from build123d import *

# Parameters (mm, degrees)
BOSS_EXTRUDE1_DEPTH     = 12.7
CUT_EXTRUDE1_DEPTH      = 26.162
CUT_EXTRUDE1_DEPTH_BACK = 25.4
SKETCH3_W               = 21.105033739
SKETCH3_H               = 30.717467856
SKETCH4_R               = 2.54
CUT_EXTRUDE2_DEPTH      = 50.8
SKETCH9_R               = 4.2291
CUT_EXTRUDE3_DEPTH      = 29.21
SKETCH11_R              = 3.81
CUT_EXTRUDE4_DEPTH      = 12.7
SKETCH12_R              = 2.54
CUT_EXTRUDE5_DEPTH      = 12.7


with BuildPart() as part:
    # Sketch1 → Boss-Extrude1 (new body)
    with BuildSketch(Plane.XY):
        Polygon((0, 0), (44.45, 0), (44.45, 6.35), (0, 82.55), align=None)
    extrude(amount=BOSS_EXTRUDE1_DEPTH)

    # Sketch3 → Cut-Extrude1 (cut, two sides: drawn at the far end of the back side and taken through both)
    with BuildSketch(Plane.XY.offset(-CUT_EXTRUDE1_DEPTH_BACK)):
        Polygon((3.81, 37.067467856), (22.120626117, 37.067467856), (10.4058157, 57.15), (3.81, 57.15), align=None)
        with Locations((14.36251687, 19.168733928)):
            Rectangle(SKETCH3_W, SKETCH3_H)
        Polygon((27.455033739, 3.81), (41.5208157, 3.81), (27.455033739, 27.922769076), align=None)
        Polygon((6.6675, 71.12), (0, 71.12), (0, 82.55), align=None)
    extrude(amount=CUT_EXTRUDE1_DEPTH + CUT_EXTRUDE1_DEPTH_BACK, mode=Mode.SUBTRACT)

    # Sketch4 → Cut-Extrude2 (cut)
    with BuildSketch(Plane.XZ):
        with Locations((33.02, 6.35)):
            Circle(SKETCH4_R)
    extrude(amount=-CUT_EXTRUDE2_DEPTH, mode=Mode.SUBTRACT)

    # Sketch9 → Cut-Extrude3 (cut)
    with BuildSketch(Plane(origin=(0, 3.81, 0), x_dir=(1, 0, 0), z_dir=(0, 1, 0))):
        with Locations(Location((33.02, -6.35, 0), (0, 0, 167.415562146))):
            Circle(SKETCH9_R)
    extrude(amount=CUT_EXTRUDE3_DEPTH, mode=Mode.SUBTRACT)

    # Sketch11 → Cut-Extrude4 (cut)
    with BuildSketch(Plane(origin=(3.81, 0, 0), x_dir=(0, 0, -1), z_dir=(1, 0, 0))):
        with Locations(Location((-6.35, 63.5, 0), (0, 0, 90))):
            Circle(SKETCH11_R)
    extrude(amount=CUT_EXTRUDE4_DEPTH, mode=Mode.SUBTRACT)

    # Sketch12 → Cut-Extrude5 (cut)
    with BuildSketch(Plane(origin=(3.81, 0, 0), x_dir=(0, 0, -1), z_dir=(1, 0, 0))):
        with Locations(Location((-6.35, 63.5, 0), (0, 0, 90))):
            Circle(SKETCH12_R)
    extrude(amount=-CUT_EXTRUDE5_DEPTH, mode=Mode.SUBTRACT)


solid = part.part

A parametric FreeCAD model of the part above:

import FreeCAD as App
import Part
import Sketcher

V = App.Vector
Q = App.Units.Quantity

doc = App.newDocument("Part")
body = doc.addObject("PartDesign::Body", "Body")

sketch1 = body.newObject("Sketcher::SketchObject", "Sketch")
sketch1.AttachmentSupport = (doc.getObject("XY_Plane"), [""])
sketch1.MapMode = "FlatFace"
sketch1.addGeometry(Part.LineSegment(V(0, 0, 0), V(44, 0, 0)), False)
sketch1.addGeometry(Part.LineSegment(V(44, 0, 0), V(44, 6, 0)), False)
sketch1.addGeometry(Part.LineSegment(V(44, 6, 0), V(0, 83, 0)), False)
sketch1.addGeometry(Part.LineSegment(V(0, 83, 0), V(0, 0, 0)), False)
sketch1.addConstraint(Sketcher.Constraint("Coincident", 0, 2, 1, 1))
sketch1.addConstraint(Sketcher.Constraint("Coincident", 1, 2, 2, 1))
sketch1.addConstraint(Sketcher.Constraint("Coincident", 2, 2, 3, 1))
sketch1.addConstraint(Sketcher.Constraint("Coincident", 3, 2, 0, 1))
sketch1.addConstraint(Sketcher.Constraint("Horizontal", 0))
sketch1.addConstraint(Sketcher.Constraint("Vertical", 1))
sketch1.addConstraint(Sketcher.Constraint("Vertical", 3))
sketch1.addConstraint(Sketcher.Constraint("Coincident", 3, 2, -1, 1))
sketch1.addConstraint(Sketcher.Constraint("DistanceY", 1, 2, 2, 2, Q("3 in")))
sketch1.addConstraint(Sketcher.Constraint("DistanceX", 0, 1, 0, 2, Q("1.75 in")))
sketch1.addConstraint(Sketcher.Constraint("DistanceY", 1, 1, 1, 2, Q("0.25 in")))
pad1 = body.newObject("PartDesign::Pad", "Pad")
pad1.Profile = sketch1
pad1.Length = Q("0.5 in")

sketch2 = body.newObject("Sketcher::SketchObject", "Sketch001")
sketch2.AttachmentSupport = (doc.getObject("XY_Plane"), [""])
sketch2.MapMode = "FlatFace"
sketch2.addGeometry(Part.LineSegment(V(4, 37, 0), V(22, 37, 0)), False)
sketch2.addGeometry(Part.LineSegment(V(22, 37, 0), V(10, 57, 0)), False)
sketch2.addGeometry(Part.LineSegment(V(10, 57, 0), V(4, 57, 0)), False)
sketch2.addGeometry(Part.LineSegment(V(4, 57, 0), V(4, 37, 0)), False)
sketch2.addGeometry(Part.LineSegment(V(4, 35, 0), V(4, 4, 0)), False)
sketch2.addGeometry(Part.LineSegment(V(4, 4, 0), V(25, 4, 0)), False)
sketch2.addGeometry(Part.LineSegment(V(25, 4, 0), V(25, 35, 0)), False)
sketch2.addGeometry(Part.LineSegment(V(25, 35, 0), V(4, 35, 0)), False)
sketch2.addGeometry(Part.LineSegment(V(27, 4, 0), V(42, 4, 0)), False)
sketch2.addGeometry(Part.LineSegment(V(42, 4, 0), V(27, 28, 0)), False)
sketch2.addGeometry(Part.LineSegment(V(27, 28, 0), V(27, 4, 0)), False)
sketch2.addGeometry(Part.LineSegment(V(0, 71, 0), V(7, 71, 0)), False)
sketch2.addGeometry(Part.LineSegment(V(7, 71, 0), V(0, 83, 0)), False)
sketch2.addGeometry(Part.LineSegment(V(0, 83, 0), V(0, 71, 0)), False)
sketch2.addConstraint(Sketcher.Constraint("Coincident", 0, 2, 1, 1))
sketch2.addConstraint(Sketcher.Constraint("Coincident", 1, 2, 2, 1))
sketch2.addConstraint(Sketcher.Constraint("Coincident", 2, 2, 3, 1))
sketch2.addConstraint(Sketcher.Constraint("Coincident", 3, 2, 0, 1))
sketch2.addConstraint(Sketcher.Constraint("Coincident", 4, 2, 5, 1))
sketch2.addConstraint(Sketcher.Constraint("Coincident", 5, 2, 6, 1))
sketch2.addConstraint(Sketcher.Constraint("Coincident", 6, 2, 7, 1))
sketch2.addConstraint(Sketcher.Constraint("Coincident", 7, 2, 4, 1))
sketch2.addConstraint(Sketcher.Constraint("Coincident", 8, 2, 9, 1))
sketch2.addConstraint(Sketcher.Constraint("Coincident", 9, 2, 10, 1))
sketch2.addConstraint(Sketcher.Constraint("Coincident", 10, 2, 8, 1))
sketch2.addConstraint(Sketcher.Constraint("Coincident", 11, 2, 12, 1))
sketch2.addConstraint(Sketcher.Constraint("Coincident", 12, 2, 13, 1))
sketch2.addConstraint(Sketcher.Constraint("Coincident", 13, 2, 11, 1))
sketch2.addConstraint(Sketcher.Constraint("Horizontal", 0))
sketch2.addConstraint(Sketcher.Constraint("Horizontal", 2))
sketch2.addConstraint(Sketcher.Constraint("Vertical", 3))
sketch2.addConstraint(Sketcher.Constraint("Vertical", 4))
sketch2.addConstraint(Sketcher.Constraint("Horizontal", 5))
sketch2.addConstraint(Sketcher.Constraint("Vertical", 6))
sketch2.addConstraint(Sketcher.Constraint("Horizontal", 7))
sketch2.addConstraint(Sketcher.Constraint("Horizontal", 8))
sketch2.addConstraint(Sketcher.Constraint("Vertical", 10))
sketch2.addConstraint(Sketcher.Constraint("Horizontal", 11))
sketch2.addConstraint(Sketcher.Constraint("Vertical", 13))
sketch2.addConstraint(Sketcher.Constraint("PointOnObject", 12, 2, -2))
sketch2.addConstraint(Sketcher.Constraint("Parallel", 1, 9))
sketch2.addConstraint(Sketcher.Constraint("Parallel", 9, 12))
sketch2.addConstraint(Sketcher.Constraint("Horizontal", 5, 2, 8, 2))
sketch2.addConstraint(Sketcher.Constraint("Vertical", 3, 2, 4, 2))
sketch2.addConstraint(Sketcher.Constraint("DistanceY", 2, 2, 12, 2, Q("1 in")))
sketch2.addConstraint(Sketcher.Constraint("DistanceY", 13, 2, 13, 1, Q("0.45 in")))
sketch2.addConstraint(Sketcher.Constraint("DistanceY", -1, 1, 11, 2, Q("2.8 in")))
sketch2.addConstraint(Sketcher.Constraint("DistanceY", 4, 2, 2, 2, Q("2.1 in")))
sketch2.addConstraint(Sketcher.Constraint("DistanceY", 6, 2, 0, 2, Q("0.1 in")))
sketch2.addConstraint(Sketcher.Constraint("DistanceX", 6, 2, 9, 2, Q("0.1 in")))
sketch2.addConstraint(Sketcher.Constraint("DistanceX", -1, 1, 2, 2, Q("0.15 in")))
sketch2.addConstraint(Sketcher.Constraint("DistanceX", 11, 1, 11, 2, Q("0.2625 in")))
sketch2.addConstraint(Sketcher.Constraint("DistanceX", 8, 1, 8, 2, 14.065782))
sketch2.addConstraint(Sketcher.Constraint("DistanceY", 9, 2, 6, 2, 6.604699))
sketch2.addConstraint(Sketcher.Constraint("DistanceX", 0, 1, 0, 2, 18.310626))
sketch2.addConstraint(Sketcher.Constraint("DistanceX", 5, 1, 5, 2, 21.105034))
pocket1 = body.newObject("PartDesign::Pocket", "Pocket")
pocket1.Profile = sketch2
pocket1.Type = "ThroughAll"
pocket1.Midplane = True

sketch3 = body.newObject("Sketcher::SketchObject", "Sketch002")
sketch3.AttachmentSupport = (doc.getObject("XZ_Plane"), [""])
sketch3.MapMode = "FlatFace"
sketch3.addGeometry(Part.Circle(V(33, 6.3, 0), V(0, 0, 1), 2.5), False)
sketch3.addConstraint(Sketcher.Constraint("Diameter", 0, Q("0.2 in")))
sketch3.addConstraint(Sketcher.Constraint("DistanceX", -1, 1, 0, 3, Q("1.3 in")))
sketch3.addConstraint(Sketcher.Constraint("DistanceY", -1, 1, 0, 3, Q("0.25 in")))
pocket2 = body.newObject("PartDesign::Pocket", "Pocket001")
pocket2.Profile = sketch3
pocket2.Length = Q("2 in")

sketch4 = body.newObject("Sketcher::SketchObject", "Sketch003")
sketch4.AttachmentSupport = (doc.getObject("XZ_Plane"), [""])
sketch4.MapMode = "FlatFace"
sketch4.AttachmentOffset = App.Placement(V(0, 0, -0.15 * 25.4), App.Rotation())
sketch4.addGeometry(Part.Circle(V(33, 6.3, 0), V(0, 0, 1), 4.2), False)
sketch4.addConstraint(Sketcher.Constraint("Diameter", 0, Q("0.333 in")))
sketch4.addConstraint(Sketcher.Constraint("DistanceX", -1, 1, 0, 3, Q("1.3 in")))
sketch4.addConstraint(Sketcher.Constraint("DistanceY", -1, 1, 0, 3, Q("0.25 in")))
pocket3 = body.newObject("PartDesign::Pocket", "Pocket002")
pocket3.Profile = sketch4
pocket3.Length = Q("1.15 in")

sketch5 = body.newObject("Sketcher::SketchObject", "Sketch004")
sketch5.AttachmentSupport = (doc.getObject("YZ_Plane"), [""])
sketch5.MapMode = "FlatFace"
sketch5.AttachmentOffset = App.Placement(V(0, 0, 0.15 * 25.4), App.Rotation())
sketch5.addGeometry(Part.Circle(V(63.5, 6.3, 0), V(0, 0, 1), 3.8), False)
sketch5.addConstraint(Sketcher.Constraint("Diameter", 0, Q("0.3 in")))
sketch5.addConstraint(Sketcher.Constraint("DistanceX", -1, 1, 0, 3, Q("2.5 in")))
sketch5.addConstraint(Sketcher.Constraint("DistanceY", -1, 1, 0, 3, Q("0.25 in")))
pocket4 = body.newObject("PartDesign::Pocket", "Pocket003")
pocket4.Profile = sketch5
pocket4.Length = Q("0.5 in")
pocket4.Reversed = True

sketch6 = body.newObject("Sketcher::SketchObject", "Sketch005")
sketch6.AttachmentSupport = (doc.getObject("YZ_Plane"), [""])
sketch6.MapMode = "FlatFace"
sketch6.AttachmentOffset = App.Placement(V(0, 0, 0.15 * 25.4), App.Rotation())
sketch6.addGeometry(Part.Circle(V(63.5, 6.3, 0), V(0, 0, 1), 2.5), False)
sketch6.addConstraint(Sketcher.Constraint("Diameter", 0, Q("0.2 in")))
sketch6.addConstraint(Sketcher.Constraint("DistanceX", -1, 1, 0, 3, Q("2.5 in")))
sketch6.addConstraint(Sketcher.Constraint("DistanceY", -1, 1, 0, 3, Q("0.25 in")))
pocket5 = body.newObject("PartDesign::Pocket", "Pocket004")
pocket5.Profile = sketch6
pocket5.Length = Q("0.5 in")

doc.recompute()
